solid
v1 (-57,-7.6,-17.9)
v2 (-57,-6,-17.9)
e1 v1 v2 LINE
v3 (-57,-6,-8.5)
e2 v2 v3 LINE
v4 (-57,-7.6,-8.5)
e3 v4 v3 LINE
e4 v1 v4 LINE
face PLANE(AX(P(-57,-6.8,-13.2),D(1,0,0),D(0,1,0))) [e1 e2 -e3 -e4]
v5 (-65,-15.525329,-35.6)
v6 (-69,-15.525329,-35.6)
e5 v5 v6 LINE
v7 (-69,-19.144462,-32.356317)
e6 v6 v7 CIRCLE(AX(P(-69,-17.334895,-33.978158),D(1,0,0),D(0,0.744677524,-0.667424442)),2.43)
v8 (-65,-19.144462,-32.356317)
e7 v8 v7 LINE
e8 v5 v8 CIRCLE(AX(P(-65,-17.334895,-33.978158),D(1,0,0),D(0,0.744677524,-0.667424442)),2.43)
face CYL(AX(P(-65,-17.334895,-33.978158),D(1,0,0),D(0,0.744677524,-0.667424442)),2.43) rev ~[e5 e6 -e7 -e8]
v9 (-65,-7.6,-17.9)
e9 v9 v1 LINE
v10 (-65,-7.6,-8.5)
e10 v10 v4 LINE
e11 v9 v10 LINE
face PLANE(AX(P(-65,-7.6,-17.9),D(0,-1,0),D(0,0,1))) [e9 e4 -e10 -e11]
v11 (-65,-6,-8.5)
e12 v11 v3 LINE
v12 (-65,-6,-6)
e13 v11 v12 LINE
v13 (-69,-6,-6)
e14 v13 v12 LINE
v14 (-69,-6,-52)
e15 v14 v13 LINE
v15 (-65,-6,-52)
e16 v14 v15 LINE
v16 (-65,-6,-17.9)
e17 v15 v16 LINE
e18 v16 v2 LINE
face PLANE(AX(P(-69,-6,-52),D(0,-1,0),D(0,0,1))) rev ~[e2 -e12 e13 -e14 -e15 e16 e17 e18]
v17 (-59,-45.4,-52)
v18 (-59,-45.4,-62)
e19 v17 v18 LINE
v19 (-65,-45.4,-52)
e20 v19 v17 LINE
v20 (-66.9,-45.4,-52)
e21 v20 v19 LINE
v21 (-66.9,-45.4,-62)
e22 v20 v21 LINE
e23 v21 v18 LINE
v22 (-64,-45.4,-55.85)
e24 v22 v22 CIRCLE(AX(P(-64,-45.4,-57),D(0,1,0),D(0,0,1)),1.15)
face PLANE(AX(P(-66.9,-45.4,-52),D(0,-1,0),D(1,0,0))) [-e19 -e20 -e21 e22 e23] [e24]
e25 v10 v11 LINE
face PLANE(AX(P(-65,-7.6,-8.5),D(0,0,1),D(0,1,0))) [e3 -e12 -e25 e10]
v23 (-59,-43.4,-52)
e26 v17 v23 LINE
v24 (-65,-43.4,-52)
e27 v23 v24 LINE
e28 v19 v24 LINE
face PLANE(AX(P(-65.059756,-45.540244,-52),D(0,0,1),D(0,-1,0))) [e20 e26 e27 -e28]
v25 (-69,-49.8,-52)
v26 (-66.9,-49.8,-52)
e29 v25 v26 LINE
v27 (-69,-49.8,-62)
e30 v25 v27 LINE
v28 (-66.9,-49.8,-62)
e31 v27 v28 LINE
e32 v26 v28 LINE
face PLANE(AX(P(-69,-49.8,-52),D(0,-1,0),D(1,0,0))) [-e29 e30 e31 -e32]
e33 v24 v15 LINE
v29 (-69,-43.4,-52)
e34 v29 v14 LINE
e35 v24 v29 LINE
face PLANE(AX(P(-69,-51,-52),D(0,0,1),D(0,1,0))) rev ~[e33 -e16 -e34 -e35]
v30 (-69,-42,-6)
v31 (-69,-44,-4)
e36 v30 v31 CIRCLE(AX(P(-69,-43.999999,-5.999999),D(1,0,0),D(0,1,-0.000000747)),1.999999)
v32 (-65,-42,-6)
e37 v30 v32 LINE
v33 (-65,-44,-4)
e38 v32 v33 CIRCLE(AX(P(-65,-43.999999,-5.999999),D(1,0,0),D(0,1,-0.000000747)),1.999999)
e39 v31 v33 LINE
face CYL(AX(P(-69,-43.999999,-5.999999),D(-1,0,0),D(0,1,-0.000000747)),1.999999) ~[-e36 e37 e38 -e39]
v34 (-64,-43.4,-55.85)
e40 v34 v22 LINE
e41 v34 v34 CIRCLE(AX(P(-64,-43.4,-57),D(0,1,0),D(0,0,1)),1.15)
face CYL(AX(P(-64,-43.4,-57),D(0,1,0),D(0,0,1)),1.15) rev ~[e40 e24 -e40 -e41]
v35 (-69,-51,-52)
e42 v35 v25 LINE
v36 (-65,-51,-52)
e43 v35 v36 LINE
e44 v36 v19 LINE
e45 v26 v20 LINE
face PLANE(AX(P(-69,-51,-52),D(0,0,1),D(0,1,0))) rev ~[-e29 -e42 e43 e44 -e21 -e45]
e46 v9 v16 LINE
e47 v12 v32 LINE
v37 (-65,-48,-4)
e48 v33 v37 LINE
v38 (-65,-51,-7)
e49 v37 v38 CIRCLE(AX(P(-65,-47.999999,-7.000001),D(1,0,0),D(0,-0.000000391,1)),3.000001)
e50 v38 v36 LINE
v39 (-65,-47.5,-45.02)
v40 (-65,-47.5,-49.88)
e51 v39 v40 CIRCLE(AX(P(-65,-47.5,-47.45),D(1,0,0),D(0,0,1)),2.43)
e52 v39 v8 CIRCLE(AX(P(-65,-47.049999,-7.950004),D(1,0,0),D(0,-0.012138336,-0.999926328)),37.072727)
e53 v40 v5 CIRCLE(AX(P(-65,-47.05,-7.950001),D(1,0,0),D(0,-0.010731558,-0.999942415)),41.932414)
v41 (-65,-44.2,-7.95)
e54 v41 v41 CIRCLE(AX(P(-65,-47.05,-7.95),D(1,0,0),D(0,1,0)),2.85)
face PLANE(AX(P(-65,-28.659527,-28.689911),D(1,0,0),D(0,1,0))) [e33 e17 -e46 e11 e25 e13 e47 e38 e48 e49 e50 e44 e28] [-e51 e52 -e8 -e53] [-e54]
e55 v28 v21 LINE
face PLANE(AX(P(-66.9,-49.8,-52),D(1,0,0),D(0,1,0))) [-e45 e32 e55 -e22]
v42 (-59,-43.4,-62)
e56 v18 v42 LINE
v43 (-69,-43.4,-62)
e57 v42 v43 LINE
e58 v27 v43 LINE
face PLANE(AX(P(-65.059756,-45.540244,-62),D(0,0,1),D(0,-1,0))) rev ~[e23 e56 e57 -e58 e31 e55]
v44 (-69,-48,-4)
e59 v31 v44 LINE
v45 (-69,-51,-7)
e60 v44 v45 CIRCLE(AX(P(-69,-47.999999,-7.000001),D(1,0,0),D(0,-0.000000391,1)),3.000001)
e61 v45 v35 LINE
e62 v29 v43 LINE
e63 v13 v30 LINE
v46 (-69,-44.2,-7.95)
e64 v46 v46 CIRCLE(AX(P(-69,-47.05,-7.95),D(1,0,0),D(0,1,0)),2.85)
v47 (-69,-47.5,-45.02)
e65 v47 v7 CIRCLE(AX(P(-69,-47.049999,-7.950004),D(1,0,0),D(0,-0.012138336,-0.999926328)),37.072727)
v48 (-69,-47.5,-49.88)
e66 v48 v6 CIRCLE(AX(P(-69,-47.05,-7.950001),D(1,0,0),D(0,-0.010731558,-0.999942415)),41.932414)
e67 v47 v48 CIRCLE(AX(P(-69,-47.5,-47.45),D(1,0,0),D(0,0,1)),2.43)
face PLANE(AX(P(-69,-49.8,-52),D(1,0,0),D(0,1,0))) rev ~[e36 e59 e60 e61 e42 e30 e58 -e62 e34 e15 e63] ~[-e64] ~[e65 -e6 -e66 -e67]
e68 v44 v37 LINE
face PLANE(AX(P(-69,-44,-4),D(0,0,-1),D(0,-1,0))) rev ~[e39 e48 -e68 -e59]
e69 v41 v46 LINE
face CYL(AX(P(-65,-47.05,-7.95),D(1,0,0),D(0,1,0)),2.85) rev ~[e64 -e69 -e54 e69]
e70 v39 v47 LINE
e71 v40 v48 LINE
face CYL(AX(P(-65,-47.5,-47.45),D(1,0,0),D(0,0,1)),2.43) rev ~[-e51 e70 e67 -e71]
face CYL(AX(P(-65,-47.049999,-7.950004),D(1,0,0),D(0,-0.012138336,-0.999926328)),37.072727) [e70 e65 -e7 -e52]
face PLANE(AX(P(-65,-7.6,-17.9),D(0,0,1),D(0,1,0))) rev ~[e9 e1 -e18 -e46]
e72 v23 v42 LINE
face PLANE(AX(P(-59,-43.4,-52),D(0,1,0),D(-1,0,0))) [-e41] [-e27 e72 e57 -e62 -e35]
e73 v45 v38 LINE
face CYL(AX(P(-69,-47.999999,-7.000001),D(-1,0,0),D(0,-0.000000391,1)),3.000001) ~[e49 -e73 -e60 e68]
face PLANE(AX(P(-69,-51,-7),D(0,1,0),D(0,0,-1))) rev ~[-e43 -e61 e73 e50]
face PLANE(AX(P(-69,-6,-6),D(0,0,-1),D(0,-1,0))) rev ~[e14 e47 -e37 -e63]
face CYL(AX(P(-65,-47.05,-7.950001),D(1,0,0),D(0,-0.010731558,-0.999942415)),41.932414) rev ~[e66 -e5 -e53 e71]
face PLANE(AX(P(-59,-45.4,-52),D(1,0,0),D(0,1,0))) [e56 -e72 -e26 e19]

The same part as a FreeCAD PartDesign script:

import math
import FreeCAD as App
import Part
import Sketcher


def add_polygon(sketch, points):
    """Adds a closed chain of lines whose ends are joined by coincident constraints."""
    first, n = sketch.GeometryCount, len(points)
    for a, b in zip(points, points[1:] + points[:1]):
        sketch.addGeometry(Part.LineSegment(App.Vector(*a, 0), App.Vector(*b, 0)), False)
    for i in range(n):
        sketch.addConstraint(Sketcher.Constraint("Coincident", first + i, 2, first + (i + 1) % n, 1))

doc = App.newDocument("Part")
body = doc.addObject("PartDesign::Body", "Body")

# Sketch on YZ plane
sketch1 = doc.addObject("Sketcher::SketchObject", "Sketch")
body.addObject(sketch1)
sketch1.AttachmentSupport = (doc.YZ_Plane, [""])
sketch1.MapMode = "FlatFace"
sketch1.addGeometry([
    Part.LineSegment(App.Vector(0, -13, 0), App.Vector(45, -13, 0)),  # 0
    Part.LineSegment(App.Vector(45, -13, 0), App.Vector(45, 33, 0)),  # 1
    Part.LineSegment(App.Vector(45, 33, 0), App.Vector(9, 33, 0)),  # 2
    Part.ArcOfCircle(Part.Circle(App.Vector(7, 33, 0), App.Vector(0, 0, 1), 2), math.radians(0), math.radians(90)),  # 3
    Part.LineSegment(App.Vector(7, 35, 0), App.Vector(3, 35, 0)),  # 4
    Part.ArcOfCircle(Part.Circle(App.Vector(3, 32, 0), App.Vector(0, 0, 1), 3), math.radians(90), math.radians(180)),  # 5
    Part.LineSegment(App.Vector(0, 32, 0), App.Vector(0, -13, 0)),  # 6
], False)
sketch1.addConstraint([
    Sketcher.Constraint("Coincident", 0, 2, 1, 1),
    Sketcher.Constraint("Coincident", 1, 2, 2, 1),
    Sketcher.Constraint("Coincident", 2, 2, 3, 1),
    Sketcher.Constraint("Tangent", 3, 2, 4, 1),
    Sketcher.Constraint("Tangent", 4, 2, 5, 1),
    Sketcher.Constraint("Tangent", 5, 2, 6, 1),
    Sketcher.Constraint("Coincident", 6, 2, 0, 1),
    Sketcher.Constraint("Horizontal", 0),
    Sketcher.Constraint("Vertical", 1),
    Sketcher.Constraint("Horizontal", 2),
    Sketcher.Constraint("Horizontal", 4),
    Sketcher.Constraint("Vertical", 6),
    Sketcher.Constraint("PointOnObject", 5, 2, -2),
    Sketcher.Constraint("Horizontal", 3, 3, 1, 2),
    Sketcher.Constraint("Equal", 0, 6),
    Sketcher.Constraint("Radius", 3, 1.999999),
    Sketcher.Constraint("Radius", 5, 3.000001),
    Sketcher.Constraint("DistanceX", 0, 1, 0, 2, 45.0),
    Sketcher.Constraint("DistanceX", 2, 2, 2, 1, 36.0),
    Sketcher.Constraint("DistanceY", -1, 1, 3, 3, 33.000001),
])
pad1 = doc.addObject("PartDesign::Pad", "Pad")
body.addObject(pad1)
pad1.Profile = sketch1
pad1.Length = 4

# Sketch on YZ plane
sketch2 = doc.addObject("Sketcher::SketchObject", "Sketch001")
body.addObject(sketch2)
sketch2.AttachmentSupport = (doc.YZ_Plane, [""])
sketch2.MapMode = "FlatFace"
sketch2.AttachmentOffset = App.Placement(App.Vector(0, 0, 4), App.Rotation())
sketch2.addGeometry([
    Part.Circle(App.Vector(4, 31.1, 0), App.Vector(0, 0, 1), 2.9),  # 0
    Part.ArcOfCircle(Part.Circle(App.Vector(3.5, -8.4, 0), App.Vector(0, 0, 1), 2.4), math.radians(90), math.radians(270)),  # 1
    Part.ArcOfCircle(Part.Circle(App.Vector(4, 31, 0), App.Vector(0, 0, 1), 41.9), math.radians(-91), math.radians(-41)),  # 2
    Part.ArcOfCircle(Part.Circle(App.Vector(33.7, 5, 0), App.Vector(0, 0, 1), 2.4), math.radians(-42), math.radians(138)),  # 3
    Part.ArcOfCircle(Part.Circle(App.Vector(4, 31, 0), App.Vector(0, 0, 1), 37.1), math.radians(-91), math.radians(-41)),  # 4
], False)
sketch2.addConstraint([
    Sketcher.Constraint("Coincident", 1, 2, 2, 1),
    Sketcher.Constraint("Coincident", 2, 2, 3, 1),
    Sketcher.Constraint("Coincident", 3, 2, 4, 2),
    Sketcher.Constraint("Coincident", 4, 1, 1, 1),
    Sketcher.Constraint("Coincident", 2, 3, 0, 3),
    Sketcher.Constraint("Coincident", 4, 3, 0, 3),
    Sketcher.Constraint("Equal", 1, 3),
    Sketcher.Constraint("Vertical", 1, 2, 4, 1),
    Sketcher.Constraint("Diameter", 0, 5.7),
    Sketcher.Constraint("Radius", 1, 2.43),
    Sketcher.Constraint("DistanceX", -1, 1, 1, 3, 3.5),
    Sketcher.Constraint("DistanceX", -1, 1, 1, 2, 3.5),
    Sketcher.Constraint("DistanceY", -1, 1, 2, 2, 3.4),
    Sketcher.Constraint("DistanceY", 1, 3, 0, 3, 39.5),
    Sketcher.Constraint("DistanceX", -1, 1, 0, 3, 3.95),
    Sketcher.Constraint("DistanceY", -1, 1, 0, 3, 31.05),
    Sketcher.Constraint("DistanceY", -1, 1, 3, 3, 5.021841),
])
pocket1 = doc.addObject("PartDesign::Pocket", "Pocket")
body.addObject(pocket1)
pocket1.Profile = sketch2
pocket1.Length = 5

# Sketch on XY plane
sketch3 = doc.addObject("Sketcher::SketchObject", "Sketch002")
body.addObject(sketch3)
sketch3.AttachmentSupport = (doc.XY_Plane, [""])
sketch3.MapMode = "FlatFace"
sketch3.AttachmentOffset = App.Placement(App.Vector(0, 0, -13), App.Rotation())
add_polygon(sketch3, [(2.1, 5.6), (2.1, 1.2), (0, 1.2), (0, 7.6), (10, 7.6), (10, 5.6)])  # lines 0-5
sketch3.addConstraint([
    Sketcher.Constraint("Vertical", 0),
    Sketcher.Constraint("Horizontal", 1),
    Sketcher.Constraint("Vertical", 2),
    Sketcher.Constraint("Horizontal", 3),
    Sketcher.Constraint("Vertical", 4),
    Sketcher.Constraint("Horizontal", 5),
    Sketcher.Constraint("PointOnObject", 1, 2, -2),
    Sketcher.Constraint("DistanceX", 3, 1, 3, 2, 10.0),
    Sketcher.Constraint("DistanceY", 4, 2, 4, 1, 2.0),
    Sketcher.Constraint("DistanceX", 1, 2, 1, 1, 2.1),
    Sketcher.Constraint("DistanceY", 0, 2, 0, 1, 4.4),
    Sketcher.Constraint("DistanceY", -1, 1, 0, 2, 1.2),
])
pad2 = doc.addObject("PartDesign::Pad", "Pad001")
body.addObject(pad2)
pad2.Profile = sketch3
pad2.Length = 10
pad2.Reversed = True

# Sketch on XZ plane
sketch4 = doc.addObject("Sketcher::SketchObject", "Sketch003")
body.addObject(sketch4)
sketch4.AttachmentSupport = (doc.XZ_Plane, [""])
sketch4.MapMode = "FlatFace"
sketch4.AttachmentOffset = App.Placement(App.Vector(0, 0, -7.6), App.Rotation())
sketch4.addGeometry(Part.Circle(App.Vector(5, -18, 0), App.Vector(0, 0, 1), 1.1), False)
sketch4.addConstraint([
    Sketcher.Constraint("Diameter", 0, 2.3),
    Sketcher.Constraint("DistanceX", -1, 1, 0, 3, 5.0),
    Sketcher.Constraint("DistanceY", 0, 3, -1, 1, 18.0),
])
pocket2 = doc.addObject("PartDesign::Pocket", "Pocket001")
body.addObject(pocket2)
pocket2.Profile = sketch4
pocket2.Length = 5
pocket2.Reversed = True

# Sketch on YZ plane
sketch5 = doc.addObject("Sketcher::SketchObject", "Sketch004")
body.addObject(sketch5)
sketch5.AttachmentSupport = (doc.YZ_Plane, [""])
sketch5.MapMode = "FlatFace"
sketch5.AttachmentOffset = App.Placement(App.Vector(0, 0, 4), App.Rotation())
add_polygon(sketch5, [(43.4, 30.5), (43.4, 21.1), (45, 21.1), (45, 30.5)])  # lines 0-3
sketch5.addConstraint([
    Sketcher.Constraint("Vertical", 0),
    Sketcher.Constraint("Horizontal", 1),
    Sketcher.Constraint("Vertical", 2),
    Sketcher.Constraint("Horizontal", 3),
    Sketcher.Constraint("DistanceX", 1, 1, 1, 2, 1.6),
    Sketcher.Constraint("DistanceY", 0, 2, 0, 1, 9.4),
    Sketcher.Constraint("DistanceX", -1, 1, 1, 2, 45.0),
    Sketcher.Constraint("DistanceY", -1, 1, 0, 2, 21.1),
])
pad3 = doc.addObject("PartDesign::Pad", "Pad002")
body.addObject(pad3)
pad3.Profile = sketch5
pad3.Length = 8
body2 = doc.addObject("PartDesign::Body", "Body001")
doc.recompute()

body.Placement = App.Placement(App.Vector(-69, -51, -39), App.Rotation(App.Vector(0, 0, 1), 0))
boolean = doc.addObject("PartDesign::Boolean", "Boolean")
body2.addObject(boolean)
boolean.Type = "Fuse"
boolean.addObjects([body])

doc.recompute()
